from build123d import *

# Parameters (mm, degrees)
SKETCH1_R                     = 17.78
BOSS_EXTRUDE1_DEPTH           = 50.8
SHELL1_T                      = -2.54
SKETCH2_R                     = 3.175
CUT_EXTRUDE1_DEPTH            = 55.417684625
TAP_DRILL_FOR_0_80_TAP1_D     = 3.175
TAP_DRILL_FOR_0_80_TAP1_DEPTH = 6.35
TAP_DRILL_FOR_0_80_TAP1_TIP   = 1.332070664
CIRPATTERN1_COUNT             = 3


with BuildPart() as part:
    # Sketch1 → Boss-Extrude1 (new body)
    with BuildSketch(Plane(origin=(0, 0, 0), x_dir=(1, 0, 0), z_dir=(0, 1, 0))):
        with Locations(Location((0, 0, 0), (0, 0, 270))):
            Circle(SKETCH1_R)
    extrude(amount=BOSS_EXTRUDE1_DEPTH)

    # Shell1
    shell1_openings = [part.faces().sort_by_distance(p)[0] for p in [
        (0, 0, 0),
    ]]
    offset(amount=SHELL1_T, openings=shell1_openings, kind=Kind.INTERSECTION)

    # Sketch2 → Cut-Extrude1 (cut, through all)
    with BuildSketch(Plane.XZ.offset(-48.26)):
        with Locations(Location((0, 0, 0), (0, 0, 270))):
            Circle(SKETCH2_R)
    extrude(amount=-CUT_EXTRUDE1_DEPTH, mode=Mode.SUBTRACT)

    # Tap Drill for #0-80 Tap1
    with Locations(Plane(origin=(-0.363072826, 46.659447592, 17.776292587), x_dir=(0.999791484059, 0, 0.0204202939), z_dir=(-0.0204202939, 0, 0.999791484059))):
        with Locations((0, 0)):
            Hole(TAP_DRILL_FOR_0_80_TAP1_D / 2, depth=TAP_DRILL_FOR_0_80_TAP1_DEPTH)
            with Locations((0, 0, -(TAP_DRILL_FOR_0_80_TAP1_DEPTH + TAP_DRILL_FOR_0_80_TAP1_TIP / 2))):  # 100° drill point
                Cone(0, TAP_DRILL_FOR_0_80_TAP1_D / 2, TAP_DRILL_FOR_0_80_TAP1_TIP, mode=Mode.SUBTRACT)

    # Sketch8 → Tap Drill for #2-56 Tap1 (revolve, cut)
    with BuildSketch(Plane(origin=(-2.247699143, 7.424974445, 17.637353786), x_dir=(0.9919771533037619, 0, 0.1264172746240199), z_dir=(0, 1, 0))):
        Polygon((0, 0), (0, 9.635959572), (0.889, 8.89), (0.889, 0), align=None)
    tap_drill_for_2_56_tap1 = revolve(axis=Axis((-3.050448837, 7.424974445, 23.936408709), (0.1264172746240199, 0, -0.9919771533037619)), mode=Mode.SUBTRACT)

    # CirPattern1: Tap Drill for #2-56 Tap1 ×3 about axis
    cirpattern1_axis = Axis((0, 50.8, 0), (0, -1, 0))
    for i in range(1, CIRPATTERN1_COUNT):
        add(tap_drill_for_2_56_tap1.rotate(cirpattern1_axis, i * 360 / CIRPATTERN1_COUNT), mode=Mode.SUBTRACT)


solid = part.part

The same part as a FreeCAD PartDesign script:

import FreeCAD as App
import Part
import Sketcher

V = App.Vector
Q = App.Units.Quantity


def faces_at(feature, points):
    """Names of the faces that lie closest to the given points."""
    faces = feature.Shape.Faces
    near = lambda p: min(range(len(faces)), key=lambda i: faces[i].distToShape(Part.Vertex(*p))[0])
    return sorted({f"Face{near(p) + 1}" for p in points})


def add_polygon(sketch, points):
    """Adds a closed chain of lines whose ends are joined by coincident constraints."""
    first, n = sketch.GeometryCount, len(points)
    for a, b in zip(points, points[1:] + points[:1]):
        sketch.addGeometry(Part.LineSegment(App.Vector(*a, 0), App.Vector(*b, 0)), False)
    for i in range(n):
        sketch.addConstraint(Sketcher.Constraint("Coincident", first + i, 2, first + (i + 1) % n, 1))

doc = App.newDocument("Part")
body = doc.addObject("PartDesign::Body", "Body")

# Sketch on XZ plane
sketch1 = body.newObject("Sketcher::SketchObject", "Sketch")
sketch1.AttachmentSupport = (doc.getObject("XZ_Plane"), [""])
sketch1.MapMode = "FlatFace"
sketch1.addGeometry(Part.Circle(V(0, 0, 0), V(0, 0, 1), 17.78), False)
sketch1.addConstraint([
    Sketcher.Constraint("Coincident", 0, 3, -1, 1),
    Sketcher.Constraint("Diameter", 0, Q("1.4 in")),
])
pad1 = body.newObject("PartDesign::Pad", "Pad")
pad1.Profile = sketch1
pad1.Length = Q("2 in")
pad1.Reversed = True
doc.recompute()

thickness = body.newObject("PartDesign::Thickness", "Thickness")
thickness.Base = (pad1, faces_at(pad1, [(0, 0, 0)]))
thickness.Value = Q("0.1 in")
thickness.Reversed = True
thickness.Join = "Intersection"

# Sketch on XZ plane
sketch2 = body.newObject("Sketcher::SketchObject", "Sketch001")
sketch2.AttachmentSupport = (doc.getObject("XZ_Plane"), [""])
sketch2.MapMode = "FlatFace"
sketch2.AttachmentOffset = App.Placement(V(0, 0, -1.9 * 25.4), App.Rotation())
sketch2.addGeometry(Part.Circle(V(0, 0, 0), V(0, 0, 1), 3.175), False)
sketch2.addConstraint([
    Sketcher.Constraint("Coincident", 0, 3, -1, 1),
    Sketcher.Constraint("Diameter", 0, Q("0.25 in")),
])
pocket1 = body.newObject("PartDesign::Pocket", "Pocket")
pocket1.Profile = sketch2
pocket1.Type = "ThroughAll"

# Sketch on an angled plane
sketch3 = body.newObject("Sketcher::SketchObject", "Sketch002")
sketch3.Placement = App.Placement(V(-0.363073, 0, 17.776293), App.Rotation(V(0.999791484, 0, 0.020420294), V(0, 1, 0), V(-0.020420294, 0, 0.999791484), "ZXY"))
sketch3.addGeometry(Part.Circle(V(0, 46.659448, 0), V(0, 0, 1), 1.5875), False)
sketch3.addConstraint([
    Sketcher.Constraint("PointOnObject", 0, 3, -2),
    Sketcher.Constraint("Diameter", 0, Q("0.125 in")),
    Sketcher.Constraint("DistanceY", -1, 1, 0, 3, Q("46.659448 mm")),
])
doc.recompute()
hole = body.newObject("PartDesign::Hole", "Hole")
hole.Profile = sketch3
hole.ThreadType = "None"
hole.Diameter = Q("0.125 in")
hole.DepthType = "Dimension"
hole.Depth = Q("0.25 in")
hole.DrillPoint = "Angled"
hole.DrillPointAngle = 100

# Sketch on XZ plane
sketch4 = body.newObject("Sketcher::SketchObject", "Sketch003")
sketch4.AttachmentSupport = (doc.getObject("XZ_Plane"), [""])
sketch4.MapMode = "FlatFace"
sketch4.AttachmentOffset = App.Placement(V(0, 0, -7.424974), App.Rotation())
add_polygon(sketch4, [(-1.029547, 8.078702), (-2.247699, 17.637354), (-1.365831, 17.749739), (-0.241982, 8.931062)])  # lines 0-3
sketch4.addGeometry(Part.LineSegment(V(-2.247699, 17.637354, 0), V(-1.029547, 8.078702, 0)), True)  # axis
sketch4.addConstraint([
    Sketcher.Constraint("Coincident", 4, 1, 0, 2),
    Sketcher.Constraint("Coincident", 4, 2, 3, 2),
    Sketcher.Constraint("Distance", 2, Q("0.35 in")),
    Sketcher.Constraint("Distance", 1, Q("0.035 in")),
    Sketcher.Constraint("DistanceX", 0, 2, -1, 1, Q("2.247699 mm")),
    Sketcher.Constraint("Distance", 0, Q("9.63596 mm")),
    Sketcher.Constraint("DistanceX", 1, 2, -1, 1, Q("1.365831 mm")),
    Sketcher.Constraint("DistanceY", -1, 1, 1, 2, Q("17.749739 mm")),
    Sketcher.Constraint("DistanceX", 2, 2, -1, 1, Q("0.241982 mm")),
    Sketcher.Constraint("DistanceY", 3, 2, 2, 2, Q("0.85236 mm")),
])
groove = body.newObject("PartDesign::Groove", "Groove")
groove.Profile = sketch4
groove.ReferenceAxis = (sketch4, ["Axis0"])
groove.Angle = 360
doc.recompute()

polarpattern = body.newObject("PartDesign::PolarPattern", "PolarPattern")
polarpattern.Originals = [groove]
polarpattern.Axis = (doc.getObject("Y_Axis"), [""])
polarpattern.Angle = 360
polarpattern.Occurrences = 3
body.Tip = polarpattern

doc.recompute()
